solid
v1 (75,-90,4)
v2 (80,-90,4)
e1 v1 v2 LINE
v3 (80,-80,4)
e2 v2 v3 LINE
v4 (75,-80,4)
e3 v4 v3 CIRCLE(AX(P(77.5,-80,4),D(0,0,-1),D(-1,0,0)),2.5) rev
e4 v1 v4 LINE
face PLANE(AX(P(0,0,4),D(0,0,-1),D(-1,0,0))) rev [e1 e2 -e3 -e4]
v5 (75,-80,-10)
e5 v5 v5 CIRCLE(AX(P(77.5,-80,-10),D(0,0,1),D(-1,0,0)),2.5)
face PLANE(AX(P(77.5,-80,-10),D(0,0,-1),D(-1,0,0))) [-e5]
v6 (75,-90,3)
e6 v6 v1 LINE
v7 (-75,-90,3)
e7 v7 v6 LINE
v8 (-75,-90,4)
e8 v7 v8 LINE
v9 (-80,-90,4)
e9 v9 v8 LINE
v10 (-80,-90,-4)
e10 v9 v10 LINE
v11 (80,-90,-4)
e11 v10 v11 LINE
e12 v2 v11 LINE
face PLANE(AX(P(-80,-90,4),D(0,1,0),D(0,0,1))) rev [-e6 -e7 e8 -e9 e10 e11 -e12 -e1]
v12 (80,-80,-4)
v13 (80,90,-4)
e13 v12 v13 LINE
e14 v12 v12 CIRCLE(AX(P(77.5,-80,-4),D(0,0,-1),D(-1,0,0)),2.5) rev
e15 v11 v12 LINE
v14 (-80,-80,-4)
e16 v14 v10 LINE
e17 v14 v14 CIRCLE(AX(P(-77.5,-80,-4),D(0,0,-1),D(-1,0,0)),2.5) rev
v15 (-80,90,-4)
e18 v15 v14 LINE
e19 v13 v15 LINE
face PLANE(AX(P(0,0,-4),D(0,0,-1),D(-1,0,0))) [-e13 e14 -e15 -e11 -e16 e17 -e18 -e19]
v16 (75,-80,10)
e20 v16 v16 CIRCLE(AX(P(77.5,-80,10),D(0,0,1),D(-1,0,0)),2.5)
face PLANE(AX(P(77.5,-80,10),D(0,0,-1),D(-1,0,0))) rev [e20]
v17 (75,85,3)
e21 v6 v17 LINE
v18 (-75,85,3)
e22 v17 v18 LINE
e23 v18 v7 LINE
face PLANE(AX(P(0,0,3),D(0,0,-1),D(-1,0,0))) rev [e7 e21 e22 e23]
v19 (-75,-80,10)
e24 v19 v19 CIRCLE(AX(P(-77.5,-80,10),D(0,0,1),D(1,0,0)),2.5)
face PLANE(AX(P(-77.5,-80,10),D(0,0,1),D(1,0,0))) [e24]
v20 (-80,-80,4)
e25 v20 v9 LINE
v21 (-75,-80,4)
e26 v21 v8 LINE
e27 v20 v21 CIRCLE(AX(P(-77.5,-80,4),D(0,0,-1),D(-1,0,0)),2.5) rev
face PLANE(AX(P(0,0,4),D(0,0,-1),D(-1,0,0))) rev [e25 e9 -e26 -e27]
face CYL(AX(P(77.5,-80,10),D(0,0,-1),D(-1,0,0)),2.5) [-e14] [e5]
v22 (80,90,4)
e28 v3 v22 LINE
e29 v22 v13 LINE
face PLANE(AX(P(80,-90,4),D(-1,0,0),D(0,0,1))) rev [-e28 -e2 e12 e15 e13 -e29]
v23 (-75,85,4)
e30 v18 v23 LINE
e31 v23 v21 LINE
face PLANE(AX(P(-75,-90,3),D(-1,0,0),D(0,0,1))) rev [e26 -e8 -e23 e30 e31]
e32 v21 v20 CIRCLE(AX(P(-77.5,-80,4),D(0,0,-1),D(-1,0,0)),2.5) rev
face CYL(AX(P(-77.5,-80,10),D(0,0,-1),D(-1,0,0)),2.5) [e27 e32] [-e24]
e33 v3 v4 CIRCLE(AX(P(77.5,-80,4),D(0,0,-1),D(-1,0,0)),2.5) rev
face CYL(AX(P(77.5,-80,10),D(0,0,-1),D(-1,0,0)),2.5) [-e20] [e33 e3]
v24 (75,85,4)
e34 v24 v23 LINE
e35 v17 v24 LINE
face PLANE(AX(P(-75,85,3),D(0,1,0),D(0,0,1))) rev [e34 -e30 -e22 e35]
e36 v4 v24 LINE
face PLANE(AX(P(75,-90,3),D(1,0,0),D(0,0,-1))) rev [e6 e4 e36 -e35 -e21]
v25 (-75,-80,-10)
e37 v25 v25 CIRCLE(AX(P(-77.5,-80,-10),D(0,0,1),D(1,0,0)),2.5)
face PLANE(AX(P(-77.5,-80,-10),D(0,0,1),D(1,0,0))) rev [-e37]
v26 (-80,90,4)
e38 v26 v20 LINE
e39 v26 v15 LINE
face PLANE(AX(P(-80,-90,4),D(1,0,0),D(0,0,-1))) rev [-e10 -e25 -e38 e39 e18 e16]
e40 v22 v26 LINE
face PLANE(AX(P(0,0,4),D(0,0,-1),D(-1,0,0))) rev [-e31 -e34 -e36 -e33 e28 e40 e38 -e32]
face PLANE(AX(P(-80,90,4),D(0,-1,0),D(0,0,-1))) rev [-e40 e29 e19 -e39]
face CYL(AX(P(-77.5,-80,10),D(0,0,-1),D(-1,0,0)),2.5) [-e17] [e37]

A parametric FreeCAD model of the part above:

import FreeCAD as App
import Part
import Sketcher

V = App.Vector

doc = App.newDocument("Part")
body = doc.addObject("PartDesign::Body", "Body")

sketch1 = body.newObject("Sketcher::SketchObject", "Sketch")
sketch1.AttachmentSupport = (doc.getObject("XY_Plane"), [""])
sketch1.MapMode = "FlatFace"
sketch1.addGeometry([
    Part.LineSegment(V(-80, 90, 0), V(-80, -90, 0)),
    Part.LineSegment(V(-80, -90, 0), V(80, -90, 0)),
    Part.LineSegment(V(80, -90, 0), V(80, 90, 0)),
    Part.LineSegment(V(80, 90, 0), V(-80, 90, 0)),
], False)
sketch1.addConstraint([
    Sketcher.Constraint("Coincident", 0, 2, 1, 1),
    Sketcher.Constraint("Coincident", 1, 2, 2, 1),
    Sketcher.Constraint("Coincident", 2, 2, 3, 1),
    Sketcher.Constraint("Coincident", 3, 2, 0, 1),
    Sketcher.Constraint("Vertical", 0),
    Sketcher.Constraint("Horizontal", 1),
    Sketcher.Constraint("Vertical", 2),
    Sketcher.Constraint("Horizontal", 3),
    Sketcher.Constraint("Symmetric", 0, 2, 2, 2, -1, 1),
    Sketcher.Constraint("DistanceX", 1, 1, 1, 2, 160.0),
    Sketcher.Constraint("DistanceY", 0, 2, 0, 1, 180.0),
])
pad1 = body.newObject("PartDesign::Pad", "Pad")
pad1.Profile = sketch1
pad1.Length = 8
pad1.Midplane = True

sketch2 = body.newObject("Sketcher::SketchObject", "Sketch001")
sketch2.AttachmentSupport = (doc.getObject("XY_Plane"), [""])
sketch2.MapMode = "FlatFace"
sketch2.AttachmentOffset = App.Placement(V(0, 0, 4), App.Rotation())
sketch2.addGeometry([
    Part.LineSegment(V(-75, 85, 0), V(-75, -90, 0)),
    Part.LineSegment(V(-75, -90, 0), V(75, -90, 0)),
    Part.LineSegment(V(75, -90, 0), V(75, 85, 0)),
    Part.LineSegment(V(75, 85, 0), V(-75, 85, 0)),
], False)
sketch2.addConstraint([
    Sketcher.Constraint("Coincident", 0, 2, 1, 1),
    Sketcher.Constraint("Coincident", 1, 2, 2, 1),
    Sketcher.Constraint("Coincident", 2, 2, 3, 1),
    Sketcher.Constraint("Coincident", 3, 2, 0, 1),
    Sketcher.Constraint("Vertical", 0),
    Sketcher.Constraint("Horizontal", 1),
    Sketcher.Constraint("Vertical", 2),
    Sketcher.Constraint("Horizontal", 3),
    Sketcher.Constraint("DistanceX", 1, 1, 1, 2, 150.0),
    Sketcher.Constraint("DistanceY", 0, 2, 0, 1, 175.0),
    Sketcher.Constraint("DistanceX", 0, 2, -1, 1, 75.0),
    Sketcher.Constraint("DistanceY", 0, 2, -1, 1, 90.0),
])
pocket1 = body.newObject("PartDesign::Pocket", "Pocket")
pocket1.Profile = sketch2
pocket1.Length = 1

sketch3 = body.newObject("Sketcher::SketchObject", "Sketch002")
sketch3.AttachmentSupport = (doc.getObject("XY_Plane"), [""])
sketch3.MapMode = "FlatFace"
sketch3.addGeometry([
    Part.Circle(V(-77.5, -80, 0), V(0, 0, 1), 2.5),
    Part.Circle(V(77.5, -80, 0), V(0, 0, 1), 2.5),
], False)
sketch3.addConstraint([
    Sketcher.Constraint("Equal", 0, 1),
    Sketcher.Constraint("Symmetric", 0, 3, 1, 3, -2),
    Sketcher.Constraint("Diameter", 0, 5.0),
    Sketcher.Constraint("DistanceY", 0, 3, -1, 1, 80.0),
    Sketcher.Constraint("DistanceX", 0, 3, 1, 3, 155.0),
])
pad2 = body.newObject("PartDesign::Pad", "Pad001")
pad2.Profile = sketch3
pad2.Length = 20
pad2.Midplane = True

doc.recompute()
